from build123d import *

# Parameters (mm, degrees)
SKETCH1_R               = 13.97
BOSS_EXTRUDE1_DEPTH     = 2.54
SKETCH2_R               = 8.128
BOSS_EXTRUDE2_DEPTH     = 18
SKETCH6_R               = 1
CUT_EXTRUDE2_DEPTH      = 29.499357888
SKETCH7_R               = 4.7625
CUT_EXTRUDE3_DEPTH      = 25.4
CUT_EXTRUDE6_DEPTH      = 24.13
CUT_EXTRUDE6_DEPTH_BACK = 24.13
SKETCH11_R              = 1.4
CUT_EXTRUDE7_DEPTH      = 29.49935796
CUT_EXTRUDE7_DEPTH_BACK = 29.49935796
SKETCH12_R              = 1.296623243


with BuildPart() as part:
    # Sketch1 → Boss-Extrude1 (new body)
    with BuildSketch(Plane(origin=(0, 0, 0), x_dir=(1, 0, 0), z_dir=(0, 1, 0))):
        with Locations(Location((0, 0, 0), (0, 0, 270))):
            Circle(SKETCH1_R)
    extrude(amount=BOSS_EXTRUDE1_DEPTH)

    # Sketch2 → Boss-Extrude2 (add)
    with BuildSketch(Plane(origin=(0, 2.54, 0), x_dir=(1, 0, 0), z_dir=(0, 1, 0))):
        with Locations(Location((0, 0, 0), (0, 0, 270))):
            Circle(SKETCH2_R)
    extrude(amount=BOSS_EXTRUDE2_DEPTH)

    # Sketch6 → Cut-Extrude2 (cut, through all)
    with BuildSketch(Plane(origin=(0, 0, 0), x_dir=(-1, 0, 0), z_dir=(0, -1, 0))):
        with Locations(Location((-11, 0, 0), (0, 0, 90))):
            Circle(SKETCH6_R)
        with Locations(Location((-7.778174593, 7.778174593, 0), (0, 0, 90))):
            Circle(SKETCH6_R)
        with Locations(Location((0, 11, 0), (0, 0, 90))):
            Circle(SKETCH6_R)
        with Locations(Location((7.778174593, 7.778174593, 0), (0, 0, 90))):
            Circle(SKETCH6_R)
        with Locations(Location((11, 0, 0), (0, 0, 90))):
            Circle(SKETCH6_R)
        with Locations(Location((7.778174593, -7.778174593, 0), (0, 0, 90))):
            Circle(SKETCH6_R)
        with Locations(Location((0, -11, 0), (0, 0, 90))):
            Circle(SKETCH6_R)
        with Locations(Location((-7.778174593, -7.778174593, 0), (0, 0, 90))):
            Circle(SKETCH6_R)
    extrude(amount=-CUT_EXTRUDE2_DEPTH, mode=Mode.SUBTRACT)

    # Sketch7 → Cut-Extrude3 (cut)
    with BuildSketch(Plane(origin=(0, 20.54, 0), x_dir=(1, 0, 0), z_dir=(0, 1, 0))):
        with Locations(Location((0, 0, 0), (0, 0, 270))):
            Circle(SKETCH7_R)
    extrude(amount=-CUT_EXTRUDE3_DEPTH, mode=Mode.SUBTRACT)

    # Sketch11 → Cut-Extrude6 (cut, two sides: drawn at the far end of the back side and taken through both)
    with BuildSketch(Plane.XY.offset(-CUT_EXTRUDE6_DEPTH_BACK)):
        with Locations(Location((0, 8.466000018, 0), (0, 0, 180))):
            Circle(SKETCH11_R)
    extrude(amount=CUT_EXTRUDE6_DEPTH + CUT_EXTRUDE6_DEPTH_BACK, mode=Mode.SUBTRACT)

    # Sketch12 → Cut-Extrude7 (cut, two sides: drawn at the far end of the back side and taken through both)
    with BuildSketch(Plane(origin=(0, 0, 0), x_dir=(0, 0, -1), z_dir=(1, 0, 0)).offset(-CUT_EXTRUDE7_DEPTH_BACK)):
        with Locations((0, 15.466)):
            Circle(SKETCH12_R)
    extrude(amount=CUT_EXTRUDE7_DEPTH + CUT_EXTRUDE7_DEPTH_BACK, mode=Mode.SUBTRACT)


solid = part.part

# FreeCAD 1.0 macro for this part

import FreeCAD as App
import Part
import Sketcher
Q = App.Units.Quantity

doc = App.newDocument("Part")
body = doc.addObject("PartDesign::Body", "Body")

sketch1 = body.newObject("Sketcher::SketchObject", "Sketch")
sketch1.AttachmentSupport = (doc.getObject("XZ_Plane"), [""])
sketch1.MapMode = "FlatFace"
sketch1.addGeometry(Part.Circle(App.Vector(0, 0, 0), App.Vector(0, 0, 1), 14), False)
sketch1.addConstraint([
    Sketcher.Constraint("Coincident", 0, 3, -1, 1),
    Sketcher.Constraint("Diameter", 0, Q("1.1 in")),
])
pad1 = body.newObject("PartDesign::Pad", "Pad")
pad1.Profile = sketch1
pad1.Length = Q("0.1 in")
pad1.Reversed = True

sketch2 = body.newObject("Sketcher::SketchObject", "Sketch001")
sketch2.AttachmentSupport = (doc.getObject("XZ_Plane"), [""])
sketch2.MapMode = "FlatFace"
sketch2.AttachmentOffset = App.Placement(App.Vector(0, 0, -0.1 * 25.4), App.Rotation())
sketch2.addGeometry(Part.Circle(App.Vector(0, 0, 0), App.Vector(0, 0, 1), 8), False)
sketch2.addConstraint([
    Sketcher.Constraint("Coincident", 0, 3, -1, 1),
    Sketcher.Constraint("Diameter", 0, Q("0.64 in")),
])
pad2 = body.newObject("PartDesign::Pad", "Pad001")
pad2.Profile = sketch2
pad2.Length = 18
pad2.Reversed = True

sketch3 = body.newObject("Sketcher::SketchObject", "Sketch002")
sketch3.AttachmentSupport = (doc.getObject("XZ_Plane"), [""])
sketch3.MapMode = "FlatFace"
sketch3.addGeometry([
    Part.Circle(App.Vector(11, 0, 0), App.Vector(0, 0, 1), 1),
    Part.Circle(App.Vector(7.8, -7.8, 0), App.Vector(0, 0, 1), 1),
    Part.Circle(App.Vector(0, -11, 0), App.Vector(0, 0, 1), 1),
    Part.Circle(App.Vector(-7.8, -7.8, 0), App.Vector(0, 0, 1), 1),
    Part.Circle(App.Vector(-11, 0, 0), App.Vector(0, 0, 1), 1),
    Part.Circle(App.Vector(-7.8, 7.8, 0), App.Vector(0, 0, 1), 1),
    Part.Circle(App.Vector(0, 11, 0), App.Vector(0, 0, 1), 1),
    Part.Circle(App.Vector(7.8, 7.8, 0), App.Vector(0, 0, 1), 1),
], False)
sketch3.addConstraint([
    Sketcher.Constraint("Equal", 0, 1),
    Sketcher.Constraint("Equal", 1, 2),
    Sketcher.Constraint("Equal", 2, 3),
    Sketcher.Constraint("Equal", 3, 4),
    Sketcher.Constraint("Equal", 4, 5),
    Sketcher.Constraint("Equal", 5, 6),
    Sketcher.Constraint("Equal", 6, 7),
    Sketcher.Constraint("Symmetric", 0, 3, 4, 3, -1, 1),
    Sketcher.Constraint("Symmetric", 1, 3, 5, 3, -1, 1),
    Sketcher.Constraint("Symmetric", 2, 3, 6, 3, -1, 1),
    Sketcher.Constraint("Symmetric", 3, 3, 7, 3, -1, 1),
    Sketcher.Constraint("Symmetric", 1, 3, 3, 3, -2),
    Sketcher.Constraint("PointOnObject", 0, 3, -1),
    Sketcher.Constraint("PointOnObject", 2, 3, -2),
    Sketcher.Constraint("Diameter", 0, 2.0),
    Sketcher.Constraint("DistanceX", -1, 1, 0, 3, 11.0),
    Sketcher.Constraint("DistanceY", 2, 3, -1, 1, 11.0),
    Sketcher.Constraint("DistanceX", 3, 3, 1, 3, 15.556349),
    Sketcher.Constraint("DistanceY", 3, 3, 5, 3, 15.556349),
])
pocket1 = body.newObject("PartDesign::Pocket", "Pocket")
pocket1.Profile = sketch3
pocket1.Type = "ThroughAll"

sketch4 = body.newObject("Sketcher::SketchObject", "Sketch003")
sketch4.AttachmentSupport = (doc.getObject("XZ_Plane"), [""])
sketch4.MapMode = "FlatFace"
sketch4.AttachmentOffset = App.Placement(App.Vector(0, 0, -20.54), App.Rotation())
sketch4.addGeometry(Part.Circle(App.Vector(0, 0, 0), App.Vector(0, 0, 1), 4.8), False)
sketch4.addConstraint([
    Sketcher.Constraint("Coincident", 0, 3, -1, 1),
    Sketcher.Constraint("Diameter", 0, Q("0.375 in")),
])
pocket2 = body.newObject("PartDesign::Pocket", "Pocket001")
pocket2.Profile = sketch4
pocket2.Length = Q("1 in")
pocket2.Reversed = True

sketch5 = body.newObject("Sketcher::SketchObject", "Sketch004")
sketch5.AttachmentSupport = (doc.getObject("XY_Plane"), [""])
sketch5.MapMode = "FlatFace"
sketch5.addGeometry(Part.Circle(App.Vector(0, 8.5, 0), App.Vector(0, 0, 1), 1.4), False)
sketch5.addConstraint([
    Sketcher.Constraint("PointOnObject", 0, 3, -2),
    Sketcher.Constraint("Diameter", 0, 2.8),
    Sketcher.Constraint("DistanceY", -1, 1, 0, 3, 8.466),
])
pocket3 = body.newObject("PartDesign::Pocket", "Pocket002")
pocket3.Profile = sketch5
pocket3.Type = "ThroughAll"
pocket3.Midplane = True

sketch6 = body.newObject("Sketcher::SketchObject", "Sketch005")
sketch6.AttachmentSupport = (doc.getObject("YZ_Plane"), [""])
sketch6.MapMode = "FlatFace"
sketch6.addGeometry(Part.Circle(App.Vector(15.5, 0, 0), App.Vector(0, 0, 1), 1.3), False)
sketch6.addConstraint([
    Sketcher.Constraint("PointOnObject", 0, 3, -1),
    Sketcher.Constraint("Diameter", 0, 2.593246),
    Sketcher.Constraint("DistanceX", -1, 1, 0, 3, 15.466),
])
pocket4 = body.newObject("PartDesign::Pocket", "Pocket003")
pocket4.Profile = sketch6
pocket4.Type = "ThroughAll"
pocket4.Midplane = True

doc.recompute()
